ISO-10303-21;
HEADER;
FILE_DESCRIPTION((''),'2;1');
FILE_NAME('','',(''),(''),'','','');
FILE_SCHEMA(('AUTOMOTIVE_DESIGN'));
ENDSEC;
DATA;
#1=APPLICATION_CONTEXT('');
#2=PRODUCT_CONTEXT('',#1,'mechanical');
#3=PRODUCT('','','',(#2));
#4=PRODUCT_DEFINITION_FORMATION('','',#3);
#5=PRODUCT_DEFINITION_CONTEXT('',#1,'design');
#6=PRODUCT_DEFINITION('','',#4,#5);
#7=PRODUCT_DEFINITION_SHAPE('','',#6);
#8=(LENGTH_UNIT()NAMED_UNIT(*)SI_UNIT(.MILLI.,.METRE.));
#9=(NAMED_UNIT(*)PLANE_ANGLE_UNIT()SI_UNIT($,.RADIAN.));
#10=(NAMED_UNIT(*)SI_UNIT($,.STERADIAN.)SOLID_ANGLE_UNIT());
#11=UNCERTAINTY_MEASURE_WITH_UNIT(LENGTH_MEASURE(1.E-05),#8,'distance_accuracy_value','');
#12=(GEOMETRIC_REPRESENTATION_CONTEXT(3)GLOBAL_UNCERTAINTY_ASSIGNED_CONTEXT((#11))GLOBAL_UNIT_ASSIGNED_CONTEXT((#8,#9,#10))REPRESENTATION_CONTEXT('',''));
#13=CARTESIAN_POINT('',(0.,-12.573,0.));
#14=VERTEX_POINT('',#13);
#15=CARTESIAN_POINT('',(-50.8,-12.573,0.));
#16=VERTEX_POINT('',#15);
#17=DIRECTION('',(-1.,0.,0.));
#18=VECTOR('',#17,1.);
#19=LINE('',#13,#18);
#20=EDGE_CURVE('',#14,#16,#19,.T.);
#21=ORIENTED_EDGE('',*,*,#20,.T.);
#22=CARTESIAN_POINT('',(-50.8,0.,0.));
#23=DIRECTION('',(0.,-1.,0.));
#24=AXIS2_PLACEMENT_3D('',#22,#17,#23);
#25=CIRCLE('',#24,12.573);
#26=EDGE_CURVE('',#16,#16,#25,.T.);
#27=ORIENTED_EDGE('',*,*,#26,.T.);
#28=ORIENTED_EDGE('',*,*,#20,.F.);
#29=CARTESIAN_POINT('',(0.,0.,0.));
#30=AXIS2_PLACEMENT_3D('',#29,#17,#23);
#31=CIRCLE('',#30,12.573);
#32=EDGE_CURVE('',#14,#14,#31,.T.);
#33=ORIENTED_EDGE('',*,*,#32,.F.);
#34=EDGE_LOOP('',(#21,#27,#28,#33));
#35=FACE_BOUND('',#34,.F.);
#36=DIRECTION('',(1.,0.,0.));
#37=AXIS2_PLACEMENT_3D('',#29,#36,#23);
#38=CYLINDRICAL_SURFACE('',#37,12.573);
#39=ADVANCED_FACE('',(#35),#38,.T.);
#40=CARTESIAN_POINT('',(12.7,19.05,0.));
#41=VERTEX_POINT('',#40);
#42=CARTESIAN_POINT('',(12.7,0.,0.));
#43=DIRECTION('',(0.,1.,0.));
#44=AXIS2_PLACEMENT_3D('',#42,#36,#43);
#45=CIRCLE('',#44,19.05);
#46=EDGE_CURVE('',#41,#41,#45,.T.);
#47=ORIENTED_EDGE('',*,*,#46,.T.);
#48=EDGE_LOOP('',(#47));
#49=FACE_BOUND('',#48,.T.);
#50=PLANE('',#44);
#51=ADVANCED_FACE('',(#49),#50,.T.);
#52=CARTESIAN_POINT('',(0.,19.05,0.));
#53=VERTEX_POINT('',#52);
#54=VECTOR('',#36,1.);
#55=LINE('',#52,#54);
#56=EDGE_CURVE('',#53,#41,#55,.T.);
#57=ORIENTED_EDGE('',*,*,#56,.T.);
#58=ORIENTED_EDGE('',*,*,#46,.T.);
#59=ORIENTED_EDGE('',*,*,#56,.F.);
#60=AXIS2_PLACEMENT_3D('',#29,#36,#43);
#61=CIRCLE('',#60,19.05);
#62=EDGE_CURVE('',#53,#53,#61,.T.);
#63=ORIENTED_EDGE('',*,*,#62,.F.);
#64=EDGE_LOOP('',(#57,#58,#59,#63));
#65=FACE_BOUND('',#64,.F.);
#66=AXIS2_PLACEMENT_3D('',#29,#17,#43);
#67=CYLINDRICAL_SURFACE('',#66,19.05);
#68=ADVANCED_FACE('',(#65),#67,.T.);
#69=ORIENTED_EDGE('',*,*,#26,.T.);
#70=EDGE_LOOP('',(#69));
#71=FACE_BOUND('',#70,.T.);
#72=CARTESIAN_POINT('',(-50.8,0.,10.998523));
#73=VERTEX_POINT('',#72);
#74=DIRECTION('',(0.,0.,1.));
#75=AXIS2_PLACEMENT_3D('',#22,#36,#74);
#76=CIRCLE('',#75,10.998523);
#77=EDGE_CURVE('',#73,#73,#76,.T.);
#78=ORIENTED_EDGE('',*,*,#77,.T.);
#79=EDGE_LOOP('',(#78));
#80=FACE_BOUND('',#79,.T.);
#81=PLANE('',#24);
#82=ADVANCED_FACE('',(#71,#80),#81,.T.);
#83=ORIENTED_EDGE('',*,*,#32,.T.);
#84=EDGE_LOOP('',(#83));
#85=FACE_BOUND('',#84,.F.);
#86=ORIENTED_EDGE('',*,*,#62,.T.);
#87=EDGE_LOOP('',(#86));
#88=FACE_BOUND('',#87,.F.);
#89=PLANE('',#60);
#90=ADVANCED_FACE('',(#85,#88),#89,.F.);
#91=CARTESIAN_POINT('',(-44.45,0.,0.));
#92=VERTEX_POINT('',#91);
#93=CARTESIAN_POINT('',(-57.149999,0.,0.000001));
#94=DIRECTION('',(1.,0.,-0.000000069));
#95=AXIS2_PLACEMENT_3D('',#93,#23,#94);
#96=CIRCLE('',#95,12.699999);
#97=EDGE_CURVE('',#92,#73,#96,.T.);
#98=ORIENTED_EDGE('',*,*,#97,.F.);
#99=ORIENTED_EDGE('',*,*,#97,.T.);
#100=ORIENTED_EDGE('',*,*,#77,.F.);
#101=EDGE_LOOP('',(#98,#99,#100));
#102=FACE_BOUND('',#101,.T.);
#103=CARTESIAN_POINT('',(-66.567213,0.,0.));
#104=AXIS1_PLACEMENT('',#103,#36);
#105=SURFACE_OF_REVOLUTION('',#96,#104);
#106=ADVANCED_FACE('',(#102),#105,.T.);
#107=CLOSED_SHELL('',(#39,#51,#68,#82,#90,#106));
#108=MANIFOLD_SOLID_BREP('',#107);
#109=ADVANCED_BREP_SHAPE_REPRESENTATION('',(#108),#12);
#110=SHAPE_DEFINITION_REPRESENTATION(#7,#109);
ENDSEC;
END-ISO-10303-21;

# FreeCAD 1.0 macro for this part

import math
import FreeCAD as App
import Part
import Sketcher
Q = App.Units.Quantity

doc = App.newDocument("Part")
body = doc.addObject("PartDesign::Body", "Body")

sketch1 = doc.addObject("Sketcher::SketchObject", "Sketch")
body.addObject(sketch1)
sketch1.AttachmentSupport = (doc.YZ_Plane, [""])
sketch1.MapMode = "FlatFace"
sketch1.addGeometry(Part.Circle(App.Vector(0, 0, 0), App.Vector(0, 0, 1), 19), False)
sketch1.addConstraint([
    Sketcher.Constraint("Coincident", 0, 3, -1, 1),
    Sketcher.Constraint("Diameter", 0, Q("1.5 in")),
])
pad1 = doc.addObject("PartDesign::Pad", "Pad")
body.addObject(pad1)
pad1.Profile = sketch1
pad1.Length = Q("0.5 in")

sketch2 = doc.addObject("Sketcher::SketchObject", "Sketch001")
body.addObject(sketch2)
sketch2.AttachmentSupport = (doc.YZ_Plane, [""])
sketch2.MapMode = "FlatFace"
sketch2.addGeometry(Part.Circle(App.Vector(0, 0, 0), App.Vector(0, 0, 1), 13), False)
sketch2.addConstraint([
    Sketcher.Constraint("Coincident", 0, 3, -1, 1),
    Sketcher.Constraint("Diameter", 0, Q("0.99 in")),
])
pad2 = doc.addObject("PartDesign::Pad", "Pad001")
body.addObject(pad2)
pad2.Profile = sketch2
pad2.Length = Q("2 in")
pad2.Reversed = True

sketch3 = doc.addObject("Sketcher::SketchObject", "Sketch002")
body.addObject(sketch3)
sketch3.AttachmentSupport = (doc.XZ_Plane, [""])
sketch3.MapMode = "FlatFace"
sketch3.addGeometry([
    Part.LineSegment(App.Vector(-51, 0, 0), App.Vector(-44, 0, 0)),
    Part.ArcOfCircle(Part.Circle(App.Vector(-57, 0, 0), App.Vector(0, 0, 1), 13), math.radians(0), math.radians(60)),
    Part.LineSegment(App.Vector(-51, 11, 0), App.Vector(-51, 0, 0)),
], False)
sketch3.addConstraint([
    Sketcher.Constraint("Coincident", 0, 2, 1, 1),
    Sketcher.Constraint("Coincident", 1, 2, 2, 1),
    Sketcher.Constraint("Coincident", 2, 2, 0, 1),
    Sketcher.Constraint("Horizontal", 0),
    Sketcher.Constraint("Vertical", 2),
    Sketcher.Constraint("PointOnObject", 1, 3, -1),
    Sketcher.Constraint("PointOnObject", 0, 2, -1),
    Sketcher.Constraint("Radius", 1, Q("0.5 in")),
    Sketcher.Constraint("DistanceX", 1, 2, -1, 1, Q("2 in")),
    Sketcher.Constraint("DistanceX", 0, 1, 0, 2, Q("0.25 in")),
])
groove = doc.addObject("PartDesign::Groove", "Groove")
body.addObject(groove)
groove.Profile = sketch3
groove.ReferenceAxis = (sketch3, ["H_Axis"])
groove.Angle = 360

doc.recompute()
